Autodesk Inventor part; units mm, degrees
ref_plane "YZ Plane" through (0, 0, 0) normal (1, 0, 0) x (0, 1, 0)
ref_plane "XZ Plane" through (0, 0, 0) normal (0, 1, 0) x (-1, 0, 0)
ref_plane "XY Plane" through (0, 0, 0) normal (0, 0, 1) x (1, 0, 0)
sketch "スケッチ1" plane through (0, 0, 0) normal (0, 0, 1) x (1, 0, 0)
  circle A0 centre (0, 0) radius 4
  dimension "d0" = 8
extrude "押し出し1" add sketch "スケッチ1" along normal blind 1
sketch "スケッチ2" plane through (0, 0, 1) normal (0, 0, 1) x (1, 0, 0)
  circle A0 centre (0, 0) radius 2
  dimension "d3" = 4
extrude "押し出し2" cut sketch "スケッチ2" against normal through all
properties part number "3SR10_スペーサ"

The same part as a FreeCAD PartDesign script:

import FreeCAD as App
import Part
import Sketcher
from FreeCAD import Vector

doc = App.newDocument("Part")
body = doc.addObject("PartDesign::Body", "Body")

# Sketch on XY plane
sketch1 = body.newObject("Sketcher::SketchObject", "Sketch")
sketch1.AttachmentSupport = (doc.getObject("XY_Plane"), [""])
sketch1.MapMode = "FlatFace"
sketch1.addGeometry(Part.Circle(Vector(0, 0, 0), Vector(0, 0, 1), 4), False)
sketch1.addConstraint(Sketcher.Constraint("Coincident", 0, 3, -1, 1))
sketch1.addConstraint(Sketcher.Constraint("Diameter", 0, 8.0))
pad1 = body.newObject("PartDesign::Pad", "Pad")
pad1.Profile = sketch1
pad1.Length = 1

# Sketch on XY plane
sketch2 = body.newObject("Sketcher::SketchObject", "Sketch001")
sketch2.AttachmentSupport = (doc.getObject("XY_Plane"), [""])
sketch2.MapMode = "FlatFace"
sketch2.AttachmentOffset = App.Placement(Vector(0, 0, 1), App.Rotation())
sketch2.addGeometry(Part.Circle(Vector(0, 0, 0), Vector(0, 0, 1), 2), False)
sketch2.addConstraint(Sketcher.Constraint("Coincident", 0, 3, -1, 1))
sketch2.addConstraint(Sketcher.Constraint("Diameter", 0, 4.0))
pocket1 = body.newObject("PartDesign::Pocket", "Pocket")
pocket1.Profile = sketch2
pocket1.Type = "ThroughAll"

doc.recompute()
